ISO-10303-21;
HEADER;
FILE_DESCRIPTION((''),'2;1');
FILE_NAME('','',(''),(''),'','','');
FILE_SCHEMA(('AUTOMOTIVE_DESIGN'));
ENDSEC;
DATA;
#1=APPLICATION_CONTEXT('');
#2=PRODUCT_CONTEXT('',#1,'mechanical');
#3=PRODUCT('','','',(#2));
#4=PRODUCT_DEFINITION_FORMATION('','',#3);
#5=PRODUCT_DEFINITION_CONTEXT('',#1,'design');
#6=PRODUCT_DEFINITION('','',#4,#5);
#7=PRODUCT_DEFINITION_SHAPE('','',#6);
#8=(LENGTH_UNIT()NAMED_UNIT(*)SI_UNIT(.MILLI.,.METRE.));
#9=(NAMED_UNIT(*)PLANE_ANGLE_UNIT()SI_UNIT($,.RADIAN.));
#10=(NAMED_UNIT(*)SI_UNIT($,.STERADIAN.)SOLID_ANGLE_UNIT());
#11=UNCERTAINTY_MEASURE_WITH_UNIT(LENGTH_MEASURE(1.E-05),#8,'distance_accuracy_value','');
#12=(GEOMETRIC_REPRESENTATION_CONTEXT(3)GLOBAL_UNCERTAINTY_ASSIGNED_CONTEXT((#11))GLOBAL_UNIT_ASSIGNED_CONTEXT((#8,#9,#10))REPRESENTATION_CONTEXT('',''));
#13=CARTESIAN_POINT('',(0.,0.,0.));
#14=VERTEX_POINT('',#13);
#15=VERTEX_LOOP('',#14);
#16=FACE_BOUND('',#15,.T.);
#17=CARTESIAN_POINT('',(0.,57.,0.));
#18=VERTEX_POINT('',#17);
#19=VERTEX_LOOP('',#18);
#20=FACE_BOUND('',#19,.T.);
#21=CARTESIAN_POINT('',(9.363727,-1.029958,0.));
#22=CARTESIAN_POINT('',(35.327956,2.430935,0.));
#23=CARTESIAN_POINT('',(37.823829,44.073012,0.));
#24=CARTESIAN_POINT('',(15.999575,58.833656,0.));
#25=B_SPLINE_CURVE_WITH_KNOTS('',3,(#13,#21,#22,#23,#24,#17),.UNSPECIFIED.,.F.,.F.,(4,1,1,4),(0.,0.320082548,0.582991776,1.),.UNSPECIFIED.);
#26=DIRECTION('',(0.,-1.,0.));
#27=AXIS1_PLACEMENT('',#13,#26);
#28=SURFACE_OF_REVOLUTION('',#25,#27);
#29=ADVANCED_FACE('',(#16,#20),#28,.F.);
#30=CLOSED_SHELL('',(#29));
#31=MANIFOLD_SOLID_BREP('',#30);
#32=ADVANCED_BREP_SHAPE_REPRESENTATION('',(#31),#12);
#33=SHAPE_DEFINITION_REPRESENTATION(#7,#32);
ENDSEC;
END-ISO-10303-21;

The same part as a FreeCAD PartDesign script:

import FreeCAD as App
import Part
import Sketcher

V = App.Vector

doc = App.newDocument("Part")
body = doc.addObject("PartDesign::Body", "Body")

sketch1 = body.newObject("Sketcher::SketchObject", "Sketch")
sketch1.AttachmentSupport = (doc.getObject("XY_Plane"), [""])
sketch1.MapMode = "FlatFace"
sketch1.addGeometry(Part.LineSegment(V(0, 57, 0), V(0, 0, 0)), False)
sketch1.addGeometry(Part.BSplineCurve([V(0, 0, 0), V(9.363727, -1.029958, 0), V(35.327956, 2.430935, 0), V(37.823829, 44.073012, 0), V(15.999575, 58.833656, 0), V(0, 57, 0)], [4, 1, 1, 4], [0, 0.320082548, 0.582991776, 1], False, 3, [1, 1, 1, 1, 1, 1], False), False)
sketch1.addConstraint(Sketcher.Constraint("Block", 1))
sketch1.addConstraint(Sketcher.Constraint("Coincident", 0, 1, 1, 2))
sketch1.addConstraint(Sketcher.Constraint("Coincident", 1, 1, 0, 2))
revolution = body.newObject("PartDesign::Revolution", "Revolution")
revolution.Profile = sketch1
revolution.ReferenceAxis = (sketch1, ["V_Axis"])
revolution.Angle = 360

doc.recompute()
